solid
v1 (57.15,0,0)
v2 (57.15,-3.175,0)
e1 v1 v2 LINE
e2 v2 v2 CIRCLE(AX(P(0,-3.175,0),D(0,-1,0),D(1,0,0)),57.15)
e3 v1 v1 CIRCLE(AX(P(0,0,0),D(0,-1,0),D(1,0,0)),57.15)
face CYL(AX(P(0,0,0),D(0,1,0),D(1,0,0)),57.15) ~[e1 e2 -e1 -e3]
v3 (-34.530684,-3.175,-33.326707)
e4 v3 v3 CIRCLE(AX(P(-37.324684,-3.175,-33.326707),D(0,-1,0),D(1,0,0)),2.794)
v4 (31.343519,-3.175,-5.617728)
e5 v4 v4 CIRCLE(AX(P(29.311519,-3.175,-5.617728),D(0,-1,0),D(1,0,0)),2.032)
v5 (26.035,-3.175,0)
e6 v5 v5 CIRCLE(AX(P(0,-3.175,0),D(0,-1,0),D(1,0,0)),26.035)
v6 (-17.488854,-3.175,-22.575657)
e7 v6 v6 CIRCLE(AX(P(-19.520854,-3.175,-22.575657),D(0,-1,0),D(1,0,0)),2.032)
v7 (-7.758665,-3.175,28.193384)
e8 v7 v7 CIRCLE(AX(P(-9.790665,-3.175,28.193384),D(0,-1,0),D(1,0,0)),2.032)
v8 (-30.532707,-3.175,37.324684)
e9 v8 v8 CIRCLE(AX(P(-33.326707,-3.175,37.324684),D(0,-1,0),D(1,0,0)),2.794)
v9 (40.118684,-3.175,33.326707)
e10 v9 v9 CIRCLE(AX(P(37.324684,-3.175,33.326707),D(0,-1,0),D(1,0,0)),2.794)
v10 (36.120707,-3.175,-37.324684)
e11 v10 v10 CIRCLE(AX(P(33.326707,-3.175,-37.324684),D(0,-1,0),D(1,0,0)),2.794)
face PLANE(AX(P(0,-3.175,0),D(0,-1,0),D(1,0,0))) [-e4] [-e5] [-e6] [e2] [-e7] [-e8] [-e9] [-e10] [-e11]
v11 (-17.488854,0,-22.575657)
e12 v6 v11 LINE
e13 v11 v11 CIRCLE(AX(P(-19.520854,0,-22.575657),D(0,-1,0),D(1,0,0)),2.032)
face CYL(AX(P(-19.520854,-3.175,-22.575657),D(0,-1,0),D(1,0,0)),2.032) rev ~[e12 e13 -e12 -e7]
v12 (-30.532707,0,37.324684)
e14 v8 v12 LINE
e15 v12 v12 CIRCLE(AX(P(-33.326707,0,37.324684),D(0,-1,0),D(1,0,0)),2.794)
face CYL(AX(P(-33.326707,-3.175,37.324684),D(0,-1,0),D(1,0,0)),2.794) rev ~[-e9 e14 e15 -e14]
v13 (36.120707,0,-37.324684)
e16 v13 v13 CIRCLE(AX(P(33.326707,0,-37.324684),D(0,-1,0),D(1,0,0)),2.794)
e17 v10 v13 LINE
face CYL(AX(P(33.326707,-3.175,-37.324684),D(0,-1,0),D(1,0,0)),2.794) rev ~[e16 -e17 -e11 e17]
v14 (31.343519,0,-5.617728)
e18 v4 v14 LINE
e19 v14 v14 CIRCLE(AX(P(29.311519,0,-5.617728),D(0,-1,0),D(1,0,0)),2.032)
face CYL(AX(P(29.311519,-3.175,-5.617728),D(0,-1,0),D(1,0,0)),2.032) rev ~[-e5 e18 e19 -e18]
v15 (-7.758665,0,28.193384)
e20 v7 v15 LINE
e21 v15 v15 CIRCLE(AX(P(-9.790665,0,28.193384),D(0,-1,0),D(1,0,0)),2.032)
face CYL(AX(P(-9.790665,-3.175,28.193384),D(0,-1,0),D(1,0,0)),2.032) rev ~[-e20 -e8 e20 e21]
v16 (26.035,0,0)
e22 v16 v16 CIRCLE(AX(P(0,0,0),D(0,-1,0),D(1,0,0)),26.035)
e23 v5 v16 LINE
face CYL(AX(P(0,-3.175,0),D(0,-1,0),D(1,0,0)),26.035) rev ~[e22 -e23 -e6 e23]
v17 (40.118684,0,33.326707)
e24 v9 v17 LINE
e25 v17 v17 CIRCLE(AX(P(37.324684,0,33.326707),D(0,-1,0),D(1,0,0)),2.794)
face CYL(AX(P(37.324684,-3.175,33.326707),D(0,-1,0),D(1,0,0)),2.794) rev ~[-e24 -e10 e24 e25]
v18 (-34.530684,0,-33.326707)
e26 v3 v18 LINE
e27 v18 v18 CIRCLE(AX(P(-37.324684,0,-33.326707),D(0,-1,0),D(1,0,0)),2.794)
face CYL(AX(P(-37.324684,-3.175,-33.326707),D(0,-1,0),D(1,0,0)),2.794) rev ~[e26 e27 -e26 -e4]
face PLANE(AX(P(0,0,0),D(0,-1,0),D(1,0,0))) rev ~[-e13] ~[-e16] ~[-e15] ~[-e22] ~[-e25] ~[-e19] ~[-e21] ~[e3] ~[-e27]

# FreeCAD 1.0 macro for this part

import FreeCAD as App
import Part
import Sketcher
from FreeCAD import Vector
Q = App.Units.Quantity

doc = App.newDocument("Part")
body = doc.addObject("PartDesign::Body", "Body")

# Sketch on XZ plane
sketch1 = doc.addObject("Sketcher::SketchObject", "Sketch")
body.addObject(sketch1)
sketch1.AttachmentSupport = (doc.XZ_Plane, [""])
sketch1.MapMode = "FlatFace"
sketch1.addGeometry(Part.Circle(Vector(0, 0, 0), Vector(0, 0, 1), 57.15), False)
sketch1.addConstraint(Sketcher.Constraint("Coincident", 0, 3, -1, 1))
sketch1.addConstraint(Sketcher.Constraint("Diameter", 0, Q("4.5 in")))
pad1 = doc.addObject("PartDesign::Pad", "Pad")
body.addObject(pad1)
pad1.Profile = sketch1
pad1.Length = Q("0.125 in")

# Sketch on XZ plane
sketch2 = doc.addObject("Sketcher::SketchObject", "Sketch001")
body.addObject(sketch2)
sketch2.AttachmentSupport = (doc.XZ_Plane, [""])
sketch2.MapMode = "FlatFace"
sketch2.AttachmentOffset = App.Placement(Vector(0, 0, 0.125 * 25.4), App.Rotation())
sketch2.addGeometry(Part.Circle(Vector(-33.326707, 37.324684, 0), Vector(0, 0, 1), 2.794), False)
sketch2.addGeometry(Part.Circle(Vector(-37.324684, -33.326707, 0), Vector(0, 0, 1), 2.794), False)
sketch2.addGeometry(Part.Circle(Vector(33.326707, -37.324684, 0), Vector(0, 0, 1), 2.794), False)
sketch2.addGeometry(Part.Circle(Vector(37.324684, 33.326707, 0), Vector(0, 0, 1), 2.794), False)
sketch2.addConstraint(Sketcher.Constraint("Equal", 0, 1))
sketch2.addConstraint(Sketcher.Constraint("Equal", 1, 2))
sketch2.addConstraint(Sketcher.Constraint("Equal", 2, 3))
sketch2.addConstraint(Sketcher.Constraint("Symmetric", 0, 3, 2, 3, -1, 1))
sketch2.addConstraint(Sketcher.Constraint("Symmetric", 1, 3, 3, 3, -1, 1))
sketch2.addConstraint(Sketcher.Constraint("Diameter", 0, Q("0.22 in")))
sketch2.addConstraint(Sketcher.Constraint("DistanceY", 1, 3, 0, 3, Q("70.651391 mm")))
sketch2.addConstraint(Sketcher.Constraint("DistanceX", 1, 3, 2, 3, Q("70.651391 mm")))
sketch2.addConstraint(Sketcher.Constraint("DistanceX", 0, 3, -1, 1, Q("33.326707 mm")))
sketch2.addConstraint(Sketcher.Constraint("DistanceY", -1, 1, 0, 3, Q("37.324684 mm")))
pocket1 = doc.addObject("PartDesign::Pocket", "Pocket")
body.addObject(pocket1)
pocket1.Profile = sketch2
pocket1.Length = Q("1 in")

# Sketch on XZ plane
sketch3 = doc.addObject("Sketcher::SketchObject", "Sketch002")
body.addObject(sketch3)
sketch3.AttachmentSupport = (doc.XZ_Plane, [""])
sketch3.MapMode = "FlatFace"
sketch3.AttachmentOffset = App.Placement(Vector(0, 0, 0.125 * 25.4), App.Rotation())
sketch3.addGeometry(Part.Circle(Vector(0, 0, 0), Vector(0, 0, 1), 26.035), False)
sketch3.addGeometry(Part.Circle(Vector(-9.790665, 28.193384, 0), Vector(0, 0, 1), 2.032), False)
sketch3.addGeometry(Part.Circle(Vector(-19.520854, -22.575657, 0), Vector(0, 0, 1), 2.032), False)
sketch3.addGeometry(Part.Circle(Vector(29.311519, -5.617728, 0), Vector(0, 0, 1), 2.032), False)
sketch3.addConstraint(Sketcher.Constraint("Coincident", 0, 3, -1, 1))
sketch3.addConstraint(Sketcher.Constraint("Equal", 1, 2))
sketch3.addConstraint(Sketcher.Constraint("Equal", 2, 3))
sketch3.addConstraint(Sketcher.Constraint("Diameter", 0, Q("2.05 in")))
sketch3.addConstraint(Sketcher.Constraint("Diameter", 1, Q("0.16 in")))
sketch3.addConstraint(Sketcher.Constraint("DistanceX", -1, 1, 3, 3, Q("29.311519 mm")))
sketch3.addConstraint(Sketcher.Constraint("DistanceX", 2, 3, 1, 3, Q("9.730189 mm")))
sketch3.addConstraint(Sketcher.Constraint("DistanceY", 2, 3, 1, 3, Q("50.769041 mm")))
sketch3.addConstraint(Sketcher.Constraint("DistanceY", 2, 3, 3, 3, Q("16.957929 mm")))
sketch3.addConstraint(Sketcher.Constraint("DistanceX", 1, 3, -1, 1, Q("9.790665 mm")))
sketch3.addConstraint(Sketcher.Constraint("DistanceY", -1, 1, 1, 3, Q("28.193384 mm")))
pocket2 = doc.addObject("PartDesign::Pocket", "Pocket001")
body.addObject(pocket2)
pocket2.Profile = sketch3
pocket2.Length = Q("1 in")

doc.recompute()
